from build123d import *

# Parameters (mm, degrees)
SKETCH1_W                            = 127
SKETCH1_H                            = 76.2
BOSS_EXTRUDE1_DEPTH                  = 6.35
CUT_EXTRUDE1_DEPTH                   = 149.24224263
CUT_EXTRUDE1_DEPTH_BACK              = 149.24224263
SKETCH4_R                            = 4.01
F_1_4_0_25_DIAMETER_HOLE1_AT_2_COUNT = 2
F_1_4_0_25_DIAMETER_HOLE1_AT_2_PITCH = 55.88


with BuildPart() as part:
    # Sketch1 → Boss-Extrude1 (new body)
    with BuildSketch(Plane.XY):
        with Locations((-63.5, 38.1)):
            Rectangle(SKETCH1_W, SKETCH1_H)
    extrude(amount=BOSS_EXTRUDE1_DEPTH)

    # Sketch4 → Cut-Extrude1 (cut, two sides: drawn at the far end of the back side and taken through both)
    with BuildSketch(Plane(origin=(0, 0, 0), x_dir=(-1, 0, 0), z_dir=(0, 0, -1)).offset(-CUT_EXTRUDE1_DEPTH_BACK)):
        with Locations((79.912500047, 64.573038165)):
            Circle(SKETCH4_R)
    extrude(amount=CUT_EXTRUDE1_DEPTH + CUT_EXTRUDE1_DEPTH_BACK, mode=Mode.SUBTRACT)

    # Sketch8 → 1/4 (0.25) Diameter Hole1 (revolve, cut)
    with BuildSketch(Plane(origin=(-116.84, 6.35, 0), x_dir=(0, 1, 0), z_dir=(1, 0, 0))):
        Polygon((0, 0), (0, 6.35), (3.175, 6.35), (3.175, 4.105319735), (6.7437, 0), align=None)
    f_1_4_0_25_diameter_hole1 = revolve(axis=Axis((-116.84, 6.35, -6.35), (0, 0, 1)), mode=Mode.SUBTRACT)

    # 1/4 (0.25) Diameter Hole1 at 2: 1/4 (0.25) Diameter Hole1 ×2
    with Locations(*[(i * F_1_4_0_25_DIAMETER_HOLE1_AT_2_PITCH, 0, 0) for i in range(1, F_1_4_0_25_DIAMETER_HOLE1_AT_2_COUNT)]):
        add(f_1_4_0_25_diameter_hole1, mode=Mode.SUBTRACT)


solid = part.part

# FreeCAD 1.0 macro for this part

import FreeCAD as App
import Part
import Sketcher
Q = App.Units.Quantity


def add_polygon(sketch, points):
    """Adds a closed chain of lines whose ends are joined by coincident constraints."""
    first, n = sketch.GeometryCount, len(points)
    for a, b in zip(points, points[1:] + points[:1]):
        sketch.addGeometry(Part.LineSegment(App.Vector(*a, 0), App.Vector(*b, 0)), False)
    for i in range(n):
        sketch.addConstraint(Sketcher.Constraint("Coincident", first + i, 2, first + (i + 1) % n, 1))

doc = App.newDocument("Part")
params = doc.addObject("Spreadsheet::Sheet", "Params")
for row, (alias, value) in enumerate([
    ("sketch1_width", "5 in"),
    ("sketch1_height", "3 in"),
    ("pad1_length", "0.25 in"),
    ("sketch3_height", "0.25 in"),
    ("sketch3_width", "0.125 in"),
    ("groove_angle", "360 deg"),
    ("linearpattern_pitch", "2.2 in"),
], start=1):
    params.set(f"A{row}", alias)
    params.set(f"B{row}", "=" + value)
    params.setAlias(f"B{row}", alias)

body = doc.addObject("PartDesign::Body", "Body")

sketch1 = body.newObject("Sketcher::SketchObject", "Sketch")
sketch1.AttachmentSupport = (doc.getObject("XY_Plane"), [""])
sketch1.MapMode = "FlatFace"
add_polygon(sketch1, [(-127, 76), (-127, 0), (0, 0), (0, 76)])
sketch1.addConstraint([
    Sketcher.Constraint("Vertical", 0),
    Sketcher.Constraint("Horizontal", 1),
    Sketcher.Constraint("Vertical", 2),
    Sketcher.Constraint("Horizontal", 3),
    Sketcher.Constraint("Coincident", 1, 2, -1, 1),
    Sketcher.Constraint("DistanceX", 1, 1, 1, 2, Q("5 in")),
    Sketcher.Constraint("DistanceY", 0, 2, 0, 1, Q("3 in")),
])
sketch1.setExpression("Constraints[9]", "Params.sketch1_width")
sketch1.setExpression("Constraints[10]", "Params.sketch1_height")
pad1 = body.newObject("PartDesign::Pad", "Pad")
pad1.Profile = sketch1
pad1.setExpression("Length", "Params.pad1_length")

sketch2 = body.newObject("Sketcher::SketchObject", "Sketch001")
sketch2.AttachmentSupport = (doc.getObject("XY_Plane"), [""])
sketch2.MapMode = "FlatFace"
sketch2.addGeometry(Part.Circle(App.Vector(-79.9, 64.6, 0), App.Vector(0, 0, 1), 4), False)
sketch2.addConstraint([
    Sketcher.Constraint("Diameter", 0, 8.02),
    Sketcher.Constraint("DistanceX", 0, 3, -1, 1, 79.9125),
    Sketcher.Constraint("DistanceY", -1, 1, 0, 3, 64.573038),
])
pocket1 = body.newObject("PartDesign::Pocket", "Pocket")
pocket1.Profile = sketch2
pocket1.Type = "ThroughAll"
pocket1.Midplane = True

sketch3 = body.newObject("Sketcher::SketchObject", "Sketch002")
sketch3.AttachmentSupport = (doc.getObject("YZ_Plane"), [""])
sketch3.MapMode = "FlatFace"
sketch3.AttachmentOffset = App.Placement(App.Vector(0, 0, -4.6 * 25.4), App.Rotation())
add_polygon(sketch3, [(6.3, 6.3), (6.3, 0), (13.1, 0), (9.5, 4.1), (9.5, 6.3)])
sketch3.addGeometry(Part.LineSegment(App.Vector(6.3, 0, 0), App.Vector(6.3, 6.3, 0)), True)
sketch3.addConstraint([
    Sketcher.Constraint("Vertical", 0),
    Sketcher.Constraint("Horizontal", 1),
    Sketcher.Constraint("Vertical", 3),
    Sketcher.Constraint("Horizontal", 4),
    Sketcher.Constraint("Vertical", 5),
    Sketcher.Constraint("Coincident", 5, 1, 0, 2),
    Sketcher.Constraint("PointOnObject", 0, 2, -1),
    Sketcher.Constraint("Horizontal", 3, 2, 5, 2),
    Sketcher.Constraint("Angle", 2, Q("131 deg")),
    Sketcher.Constraint("DistanceY", 0, 2, 0, 1, Q("0.25 in")),
    Sketcher.Constraint("DistanceX", 4, 2, 4, 1, Q("0.125 in")),
    Sketcher.Constraint("DistanceX", -1, 1, 0, 2, Q("0.25 in")),
    Sketcher.Constraint("DistanceX", 1, 1, 1, 2, Q("0.2655 in")),
])
sketch3.setExpression("Constraints[14]", "Params.sketch3_height")
sketch3.setExpression("Constraints[15]", "Params.sketch3_width")
groove = body.newObject("PartDesign::Groove", "Groove")
groove.Profile = sketch3
groove.ReferenceAxis = (sketch3, ["Axis0"])
groove.setExpression("Angle", "Params.groove_angle")
doc.recompute()

linearpattern = body.newObject("PartDesign::LinearPattern", "LinearPattern")
linearpattern.Originals = [groove]
linearpattern.Direction = (doc.getObject("X_Axis"), [""])
linearpattern.Mode = "offset"
linearpattern.setExpression("Offset", "Params.linearpattern_pitch")
linearpattern.Occurrences = 2
body.Tip = linearpattern

doc.recompute()
